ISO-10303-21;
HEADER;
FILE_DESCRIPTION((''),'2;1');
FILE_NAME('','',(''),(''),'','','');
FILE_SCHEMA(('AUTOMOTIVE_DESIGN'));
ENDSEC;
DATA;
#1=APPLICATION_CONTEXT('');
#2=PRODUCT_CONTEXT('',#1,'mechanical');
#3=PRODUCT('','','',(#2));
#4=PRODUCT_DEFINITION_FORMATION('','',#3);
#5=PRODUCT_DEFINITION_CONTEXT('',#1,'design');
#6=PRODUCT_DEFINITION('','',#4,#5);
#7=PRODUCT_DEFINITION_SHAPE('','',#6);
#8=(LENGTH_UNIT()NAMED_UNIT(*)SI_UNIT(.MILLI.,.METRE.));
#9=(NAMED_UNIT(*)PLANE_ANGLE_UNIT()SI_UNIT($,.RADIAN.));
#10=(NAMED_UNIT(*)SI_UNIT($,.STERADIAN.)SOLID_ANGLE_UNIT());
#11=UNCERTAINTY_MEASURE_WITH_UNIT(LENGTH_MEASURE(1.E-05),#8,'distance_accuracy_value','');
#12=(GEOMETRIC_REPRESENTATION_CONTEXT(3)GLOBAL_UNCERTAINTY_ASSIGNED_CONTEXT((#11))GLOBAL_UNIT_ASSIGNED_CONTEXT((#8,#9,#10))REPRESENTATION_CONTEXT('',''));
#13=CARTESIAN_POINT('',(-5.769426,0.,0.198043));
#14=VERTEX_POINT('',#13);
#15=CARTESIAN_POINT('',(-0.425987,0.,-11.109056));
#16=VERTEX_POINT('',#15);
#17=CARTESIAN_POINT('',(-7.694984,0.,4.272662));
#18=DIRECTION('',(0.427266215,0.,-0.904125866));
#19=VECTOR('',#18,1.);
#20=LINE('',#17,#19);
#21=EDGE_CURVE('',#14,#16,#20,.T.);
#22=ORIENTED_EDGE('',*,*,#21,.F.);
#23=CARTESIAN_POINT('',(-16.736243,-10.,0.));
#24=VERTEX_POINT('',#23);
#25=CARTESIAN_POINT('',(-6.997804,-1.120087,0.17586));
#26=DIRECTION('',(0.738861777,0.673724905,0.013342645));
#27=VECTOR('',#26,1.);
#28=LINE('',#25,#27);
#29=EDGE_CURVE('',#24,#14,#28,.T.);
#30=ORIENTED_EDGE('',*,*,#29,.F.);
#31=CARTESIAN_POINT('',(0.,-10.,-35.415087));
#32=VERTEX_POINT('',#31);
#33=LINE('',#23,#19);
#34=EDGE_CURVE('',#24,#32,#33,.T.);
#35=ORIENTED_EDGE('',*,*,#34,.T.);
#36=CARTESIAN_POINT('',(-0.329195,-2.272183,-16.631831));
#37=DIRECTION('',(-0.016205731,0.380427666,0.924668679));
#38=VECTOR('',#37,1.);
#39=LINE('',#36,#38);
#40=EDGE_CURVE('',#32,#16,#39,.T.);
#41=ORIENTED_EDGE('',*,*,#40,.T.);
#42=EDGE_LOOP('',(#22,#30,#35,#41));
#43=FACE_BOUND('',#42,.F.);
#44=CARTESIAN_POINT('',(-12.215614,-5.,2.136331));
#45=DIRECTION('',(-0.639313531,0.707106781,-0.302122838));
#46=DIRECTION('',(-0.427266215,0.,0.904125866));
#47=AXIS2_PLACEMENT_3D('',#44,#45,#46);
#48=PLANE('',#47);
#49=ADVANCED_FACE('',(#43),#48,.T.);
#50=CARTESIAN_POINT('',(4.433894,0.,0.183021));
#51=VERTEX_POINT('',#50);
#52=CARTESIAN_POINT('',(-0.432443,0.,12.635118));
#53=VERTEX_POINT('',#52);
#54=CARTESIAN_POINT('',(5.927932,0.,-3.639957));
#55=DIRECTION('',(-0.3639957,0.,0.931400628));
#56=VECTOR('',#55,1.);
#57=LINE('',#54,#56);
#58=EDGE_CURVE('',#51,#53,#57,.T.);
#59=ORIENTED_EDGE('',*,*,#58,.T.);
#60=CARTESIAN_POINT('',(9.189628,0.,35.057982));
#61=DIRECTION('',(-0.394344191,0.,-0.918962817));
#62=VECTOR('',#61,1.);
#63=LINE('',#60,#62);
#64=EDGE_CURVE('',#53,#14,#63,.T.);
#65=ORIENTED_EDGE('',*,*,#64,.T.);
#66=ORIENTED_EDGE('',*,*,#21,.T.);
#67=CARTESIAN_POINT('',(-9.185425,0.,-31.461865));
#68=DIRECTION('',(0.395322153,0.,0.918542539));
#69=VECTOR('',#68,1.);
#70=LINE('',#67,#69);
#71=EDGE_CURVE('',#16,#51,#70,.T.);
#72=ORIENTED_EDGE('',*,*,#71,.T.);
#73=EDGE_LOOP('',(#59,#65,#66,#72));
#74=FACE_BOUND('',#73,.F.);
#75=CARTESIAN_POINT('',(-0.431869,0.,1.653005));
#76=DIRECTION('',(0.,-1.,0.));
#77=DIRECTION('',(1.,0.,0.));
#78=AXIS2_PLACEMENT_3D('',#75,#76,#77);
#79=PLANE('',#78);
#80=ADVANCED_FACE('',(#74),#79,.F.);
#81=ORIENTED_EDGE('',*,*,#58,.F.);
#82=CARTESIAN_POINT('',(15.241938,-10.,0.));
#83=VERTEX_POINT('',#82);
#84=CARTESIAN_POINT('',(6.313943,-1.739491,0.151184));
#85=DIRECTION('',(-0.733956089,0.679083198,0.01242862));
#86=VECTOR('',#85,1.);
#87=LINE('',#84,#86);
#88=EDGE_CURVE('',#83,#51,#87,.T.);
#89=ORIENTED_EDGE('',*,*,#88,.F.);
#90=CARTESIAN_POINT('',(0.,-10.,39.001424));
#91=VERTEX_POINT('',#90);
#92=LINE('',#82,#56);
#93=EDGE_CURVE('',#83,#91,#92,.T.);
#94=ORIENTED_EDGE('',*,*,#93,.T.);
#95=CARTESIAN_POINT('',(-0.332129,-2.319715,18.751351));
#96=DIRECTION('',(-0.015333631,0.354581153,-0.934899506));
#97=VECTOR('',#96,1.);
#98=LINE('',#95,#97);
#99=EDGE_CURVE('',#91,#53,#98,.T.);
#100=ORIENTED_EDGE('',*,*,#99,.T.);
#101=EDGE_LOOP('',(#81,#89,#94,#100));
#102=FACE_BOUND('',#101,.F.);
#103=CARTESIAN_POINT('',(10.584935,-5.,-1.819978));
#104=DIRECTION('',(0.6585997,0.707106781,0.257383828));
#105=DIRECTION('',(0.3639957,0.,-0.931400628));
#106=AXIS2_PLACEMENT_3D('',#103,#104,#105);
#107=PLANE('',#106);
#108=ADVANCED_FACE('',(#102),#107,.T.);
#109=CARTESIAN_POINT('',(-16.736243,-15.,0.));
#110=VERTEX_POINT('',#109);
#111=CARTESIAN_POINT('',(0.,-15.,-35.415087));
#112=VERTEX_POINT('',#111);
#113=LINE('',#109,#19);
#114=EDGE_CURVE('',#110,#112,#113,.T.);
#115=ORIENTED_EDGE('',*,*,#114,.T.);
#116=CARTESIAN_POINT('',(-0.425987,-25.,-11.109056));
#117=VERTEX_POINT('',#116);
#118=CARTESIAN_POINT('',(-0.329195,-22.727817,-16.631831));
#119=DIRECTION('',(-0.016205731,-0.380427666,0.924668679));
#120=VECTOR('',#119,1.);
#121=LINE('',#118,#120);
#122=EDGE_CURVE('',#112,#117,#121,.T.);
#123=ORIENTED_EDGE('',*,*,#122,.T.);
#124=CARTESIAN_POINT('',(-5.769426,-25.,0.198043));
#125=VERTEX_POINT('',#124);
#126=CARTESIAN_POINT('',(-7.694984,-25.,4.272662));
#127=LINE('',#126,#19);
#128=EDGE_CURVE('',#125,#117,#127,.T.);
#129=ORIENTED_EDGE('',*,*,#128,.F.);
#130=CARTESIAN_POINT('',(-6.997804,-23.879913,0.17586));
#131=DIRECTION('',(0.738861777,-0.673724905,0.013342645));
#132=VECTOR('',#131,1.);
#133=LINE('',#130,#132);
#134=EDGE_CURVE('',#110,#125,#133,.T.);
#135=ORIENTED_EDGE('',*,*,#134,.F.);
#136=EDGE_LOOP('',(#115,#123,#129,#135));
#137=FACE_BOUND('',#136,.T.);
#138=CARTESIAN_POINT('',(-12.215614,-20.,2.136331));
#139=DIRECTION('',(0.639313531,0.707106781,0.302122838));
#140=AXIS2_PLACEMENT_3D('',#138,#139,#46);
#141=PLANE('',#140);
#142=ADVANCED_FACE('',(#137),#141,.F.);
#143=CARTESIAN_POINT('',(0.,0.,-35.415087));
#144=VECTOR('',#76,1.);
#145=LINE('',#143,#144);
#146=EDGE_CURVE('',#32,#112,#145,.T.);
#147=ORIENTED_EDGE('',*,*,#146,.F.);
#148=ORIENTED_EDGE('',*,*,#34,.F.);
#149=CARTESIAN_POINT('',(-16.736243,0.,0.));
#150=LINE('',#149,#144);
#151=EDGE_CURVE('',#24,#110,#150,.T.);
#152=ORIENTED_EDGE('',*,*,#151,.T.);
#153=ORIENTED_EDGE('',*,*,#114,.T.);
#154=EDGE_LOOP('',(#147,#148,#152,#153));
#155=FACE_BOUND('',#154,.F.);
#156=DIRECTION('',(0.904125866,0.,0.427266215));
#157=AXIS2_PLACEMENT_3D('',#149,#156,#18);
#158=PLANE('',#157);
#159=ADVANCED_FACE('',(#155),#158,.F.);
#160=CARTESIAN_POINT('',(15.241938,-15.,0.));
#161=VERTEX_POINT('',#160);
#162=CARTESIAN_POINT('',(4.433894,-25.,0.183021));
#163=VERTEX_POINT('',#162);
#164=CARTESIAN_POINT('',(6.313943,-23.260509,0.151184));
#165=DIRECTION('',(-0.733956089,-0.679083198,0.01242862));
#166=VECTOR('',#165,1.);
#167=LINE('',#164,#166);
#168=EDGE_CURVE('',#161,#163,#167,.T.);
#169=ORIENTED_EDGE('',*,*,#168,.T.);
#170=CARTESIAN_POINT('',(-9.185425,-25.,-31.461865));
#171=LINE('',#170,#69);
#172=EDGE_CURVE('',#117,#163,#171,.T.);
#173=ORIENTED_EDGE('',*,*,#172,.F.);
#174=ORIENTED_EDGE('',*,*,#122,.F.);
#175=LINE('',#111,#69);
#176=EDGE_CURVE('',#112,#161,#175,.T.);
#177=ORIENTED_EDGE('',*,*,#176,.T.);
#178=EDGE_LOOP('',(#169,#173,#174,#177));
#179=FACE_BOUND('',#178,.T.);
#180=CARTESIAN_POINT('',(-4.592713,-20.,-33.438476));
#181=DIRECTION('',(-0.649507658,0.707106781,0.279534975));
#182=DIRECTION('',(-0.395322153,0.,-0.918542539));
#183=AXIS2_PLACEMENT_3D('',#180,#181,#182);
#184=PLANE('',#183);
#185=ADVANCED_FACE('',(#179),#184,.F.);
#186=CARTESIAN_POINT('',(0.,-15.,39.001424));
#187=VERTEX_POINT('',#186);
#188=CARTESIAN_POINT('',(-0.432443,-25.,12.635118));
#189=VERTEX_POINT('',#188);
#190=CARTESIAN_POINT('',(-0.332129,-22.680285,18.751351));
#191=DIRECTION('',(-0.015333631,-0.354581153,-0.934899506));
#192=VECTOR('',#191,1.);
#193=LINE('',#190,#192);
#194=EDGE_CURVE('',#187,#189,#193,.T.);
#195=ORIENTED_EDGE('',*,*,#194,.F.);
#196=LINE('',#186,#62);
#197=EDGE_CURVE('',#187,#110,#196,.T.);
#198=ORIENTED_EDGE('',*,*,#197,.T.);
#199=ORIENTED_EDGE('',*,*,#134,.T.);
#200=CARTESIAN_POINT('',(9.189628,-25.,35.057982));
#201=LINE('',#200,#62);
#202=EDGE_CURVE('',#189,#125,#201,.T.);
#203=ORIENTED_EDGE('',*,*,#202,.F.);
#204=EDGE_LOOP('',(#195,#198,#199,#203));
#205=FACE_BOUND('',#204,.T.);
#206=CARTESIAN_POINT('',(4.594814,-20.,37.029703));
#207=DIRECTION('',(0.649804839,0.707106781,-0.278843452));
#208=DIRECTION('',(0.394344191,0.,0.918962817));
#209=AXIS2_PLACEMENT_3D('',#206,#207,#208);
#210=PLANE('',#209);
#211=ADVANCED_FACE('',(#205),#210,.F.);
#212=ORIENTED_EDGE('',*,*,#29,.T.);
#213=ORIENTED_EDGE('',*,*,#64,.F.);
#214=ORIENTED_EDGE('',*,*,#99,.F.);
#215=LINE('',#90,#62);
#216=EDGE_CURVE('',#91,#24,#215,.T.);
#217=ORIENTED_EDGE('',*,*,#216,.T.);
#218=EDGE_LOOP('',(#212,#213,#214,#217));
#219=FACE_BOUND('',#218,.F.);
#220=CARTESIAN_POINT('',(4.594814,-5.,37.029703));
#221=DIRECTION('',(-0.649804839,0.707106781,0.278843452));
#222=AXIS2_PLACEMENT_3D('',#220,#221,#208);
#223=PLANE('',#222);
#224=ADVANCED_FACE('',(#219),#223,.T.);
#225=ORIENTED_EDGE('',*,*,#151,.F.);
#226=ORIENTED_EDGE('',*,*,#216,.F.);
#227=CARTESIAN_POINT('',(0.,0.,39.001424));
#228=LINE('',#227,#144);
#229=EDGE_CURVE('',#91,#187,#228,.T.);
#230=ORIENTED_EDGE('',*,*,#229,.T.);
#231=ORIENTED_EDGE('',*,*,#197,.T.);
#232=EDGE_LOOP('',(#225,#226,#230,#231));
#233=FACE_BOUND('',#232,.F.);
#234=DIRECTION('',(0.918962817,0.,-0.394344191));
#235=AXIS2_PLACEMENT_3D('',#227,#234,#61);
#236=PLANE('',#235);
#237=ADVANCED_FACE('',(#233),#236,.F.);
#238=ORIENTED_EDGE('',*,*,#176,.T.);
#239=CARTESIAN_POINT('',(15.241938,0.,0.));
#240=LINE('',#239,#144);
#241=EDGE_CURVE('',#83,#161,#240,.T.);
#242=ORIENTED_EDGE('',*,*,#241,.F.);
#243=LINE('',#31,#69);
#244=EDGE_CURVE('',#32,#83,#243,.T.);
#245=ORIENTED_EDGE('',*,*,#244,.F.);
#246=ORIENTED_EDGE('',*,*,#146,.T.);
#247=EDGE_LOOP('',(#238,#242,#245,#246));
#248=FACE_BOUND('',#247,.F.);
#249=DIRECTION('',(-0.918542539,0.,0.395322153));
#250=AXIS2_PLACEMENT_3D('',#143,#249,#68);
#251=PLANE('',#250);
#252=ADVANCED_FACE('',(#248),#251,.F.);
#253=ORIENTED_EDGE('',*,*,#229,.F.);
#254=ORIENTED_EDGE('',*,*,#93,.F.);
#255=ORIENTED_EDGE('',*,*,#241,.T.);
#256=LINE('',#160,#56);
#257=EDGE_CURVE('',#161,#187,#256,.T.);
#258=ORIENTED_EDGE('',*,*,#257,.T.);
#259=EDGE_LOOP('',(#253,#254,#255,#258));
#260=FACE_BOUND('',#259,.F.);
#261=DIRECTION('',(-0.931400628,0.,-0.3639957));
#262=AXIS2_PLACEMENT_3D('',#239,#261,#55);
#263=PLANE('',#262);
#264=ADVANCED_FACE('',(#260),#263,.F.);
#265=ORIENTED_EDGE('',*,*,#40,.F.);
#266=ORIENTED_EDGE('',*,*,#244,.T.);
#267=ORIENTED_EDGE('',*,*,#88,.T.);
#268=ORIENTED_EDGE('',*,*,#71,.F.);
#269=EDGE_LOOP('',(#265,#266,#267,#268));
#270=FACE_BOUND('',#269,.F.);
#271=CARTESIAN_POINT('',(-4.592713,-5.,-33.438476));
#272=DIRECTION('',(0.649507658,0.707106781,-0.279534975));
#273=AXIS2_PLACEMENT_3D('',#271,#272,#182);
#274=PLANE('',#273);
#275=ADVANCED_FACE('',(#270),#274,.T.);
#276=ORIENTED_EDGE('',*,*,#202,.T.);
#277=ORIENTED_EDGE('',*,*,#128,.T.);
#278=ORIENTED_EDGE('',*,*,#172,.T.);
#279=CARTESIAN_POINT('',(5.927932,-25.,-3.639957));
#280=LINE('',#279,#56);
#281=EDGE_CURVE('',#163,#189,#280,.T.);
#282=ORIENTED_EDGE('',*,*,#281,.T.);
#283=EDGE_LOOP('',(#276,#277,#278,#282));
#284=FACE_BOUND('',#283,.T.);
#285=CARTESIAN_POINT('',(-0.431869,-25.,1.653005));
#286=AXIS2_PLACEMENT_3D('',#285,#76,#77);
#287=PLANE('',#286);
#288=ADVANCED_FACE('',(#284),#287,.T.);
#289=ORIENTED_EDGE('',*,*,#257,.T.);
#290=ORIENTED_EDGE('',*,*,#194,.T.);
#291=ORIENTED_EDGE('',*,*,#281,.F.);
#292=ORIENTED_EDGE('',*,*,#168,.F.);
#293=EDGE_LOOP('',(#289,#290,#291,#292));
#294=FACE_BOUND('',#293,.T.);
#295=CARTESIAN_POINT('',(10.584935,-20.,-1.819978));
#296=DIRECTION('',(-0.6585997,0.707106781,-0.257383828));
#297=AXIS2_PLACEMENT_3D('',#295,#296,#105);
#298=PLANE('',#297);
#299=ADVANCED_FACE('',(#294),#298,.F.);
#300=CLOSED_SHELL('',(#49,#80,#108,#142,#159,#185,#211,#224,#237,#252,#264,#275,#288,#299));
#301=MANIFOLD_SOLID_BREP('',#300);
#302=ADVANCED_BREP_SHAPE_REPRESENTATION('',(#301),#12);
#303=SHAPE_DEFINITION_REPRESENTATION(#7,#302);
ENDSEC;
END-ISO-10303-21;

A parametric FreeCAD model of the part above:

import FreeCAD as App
import Part
import Sketcher
Q = App.Units.Quantity


def edges_at(feature, points):
    """Names of the edges that pass closest to the given points."""
    edges = feature.Shape.Edges
    near = lambda p: min(range(len(edges)), key=lambda i: edges[i].distToShape(Part.Vertex(*p))[0])
    return sorted({f"Edge{near(p) + 1}" for p in points})

doc = App.newDocument("Part")
params = doc.addObject("Spreadsheet::Sheet", "Params")
for row, (alias, value) in enumerate([
    ("pad1_length", "25 mm"),
    ("chamfer_size", "10 mm"),
], start=1):
    params.set(f"A{row}", alias)
    params.set(f"B{row}", "=" + value)
    params.setAlias(f"B{row}", alias)

body = doc.addObject("PartDesign::Body", "Body")

sketch1 = body.newObject("Sketcher::SketchObject", "Sketch")
sketch1.AttachmentSupport = (doc.getObject("XZ_Plane"), [""])
sketch1.MapMode = "FlatFace"
sketch1.addGeometry([
    Part.LineSegment(App.Vector(0, 39.001424, 0), App.Vector(-16.736243, 0, 0)),
    Part.LineSegment(App.Vector(-16.736243, 0, 0), App.Vector(0, -35.415087, 0)),
    Part.LineSegment(App.Vector(0, -35.415087, 0), App.Vector(15.241938, 0, 0)),
    Part.LineSegment(App.Vector(15.241938, 0, 0), App.Vector(0, 39.001424, 0)),
], False)
sketch1.addConstraint([
    Sketcher.Constraint("Coincident", 0, 2, 1, 1),
    Sketcher.Constraint("Coincident", 1, 2, 2, 1),
    Sketcher.Constraint("Coincident", 2, 2, 3, 1),
    Sketcher.Constraint("Coincident", 3, 2, 0, 1),
    Sketcher.Constraint("PointOnObject", 0, 2, -1),
    Sketcher.Constraint("PointOnObject", 1, 2, -2),
    Sketcher.Constraint("PointOnObject", 2, 2, -1),
    Sketcher.Constraint("PointOnObject", 3, 2, -2),
    Sketcher.Constraint("Distance", 0, Q("42.440699 mm")),
    Sketcher.Constraint("Distance", 2, Q("38.55574 mm")),
    Sketcher.Constraint("Distance", 3, Q("41.873951 mm")),
    Sketcher.Constraint("DistanceX", 0, 2, 2, 2, Q("31.978181 mm")),
])
pad1 = body.newObject("PartDesign::Pad", "Pad")
pad1.Profile = sketch1
pad1.setExpression("Length", "Params.pad1_length")
doc.recompute()

chamfer = body.newObject("PartDesign::Chamfer", "Chamfer")
chamfer.Base = (pad1, edges_at(pad1, [
    (-8.368, -25, 19.501),
    (-8.368, 0, 19.501),
    (-8.368, -25, -17.708),
    (-8.368, 0, -17.708),
    (7.621, 0, 19.501),
    (7.621, -25, 19.501),
    (7.621, -25, -17.708),
    (7.621, 0, -17.708),
]))
chamfer.setExpression("Size", "Params.chamfer_size")

doc.recompute()
